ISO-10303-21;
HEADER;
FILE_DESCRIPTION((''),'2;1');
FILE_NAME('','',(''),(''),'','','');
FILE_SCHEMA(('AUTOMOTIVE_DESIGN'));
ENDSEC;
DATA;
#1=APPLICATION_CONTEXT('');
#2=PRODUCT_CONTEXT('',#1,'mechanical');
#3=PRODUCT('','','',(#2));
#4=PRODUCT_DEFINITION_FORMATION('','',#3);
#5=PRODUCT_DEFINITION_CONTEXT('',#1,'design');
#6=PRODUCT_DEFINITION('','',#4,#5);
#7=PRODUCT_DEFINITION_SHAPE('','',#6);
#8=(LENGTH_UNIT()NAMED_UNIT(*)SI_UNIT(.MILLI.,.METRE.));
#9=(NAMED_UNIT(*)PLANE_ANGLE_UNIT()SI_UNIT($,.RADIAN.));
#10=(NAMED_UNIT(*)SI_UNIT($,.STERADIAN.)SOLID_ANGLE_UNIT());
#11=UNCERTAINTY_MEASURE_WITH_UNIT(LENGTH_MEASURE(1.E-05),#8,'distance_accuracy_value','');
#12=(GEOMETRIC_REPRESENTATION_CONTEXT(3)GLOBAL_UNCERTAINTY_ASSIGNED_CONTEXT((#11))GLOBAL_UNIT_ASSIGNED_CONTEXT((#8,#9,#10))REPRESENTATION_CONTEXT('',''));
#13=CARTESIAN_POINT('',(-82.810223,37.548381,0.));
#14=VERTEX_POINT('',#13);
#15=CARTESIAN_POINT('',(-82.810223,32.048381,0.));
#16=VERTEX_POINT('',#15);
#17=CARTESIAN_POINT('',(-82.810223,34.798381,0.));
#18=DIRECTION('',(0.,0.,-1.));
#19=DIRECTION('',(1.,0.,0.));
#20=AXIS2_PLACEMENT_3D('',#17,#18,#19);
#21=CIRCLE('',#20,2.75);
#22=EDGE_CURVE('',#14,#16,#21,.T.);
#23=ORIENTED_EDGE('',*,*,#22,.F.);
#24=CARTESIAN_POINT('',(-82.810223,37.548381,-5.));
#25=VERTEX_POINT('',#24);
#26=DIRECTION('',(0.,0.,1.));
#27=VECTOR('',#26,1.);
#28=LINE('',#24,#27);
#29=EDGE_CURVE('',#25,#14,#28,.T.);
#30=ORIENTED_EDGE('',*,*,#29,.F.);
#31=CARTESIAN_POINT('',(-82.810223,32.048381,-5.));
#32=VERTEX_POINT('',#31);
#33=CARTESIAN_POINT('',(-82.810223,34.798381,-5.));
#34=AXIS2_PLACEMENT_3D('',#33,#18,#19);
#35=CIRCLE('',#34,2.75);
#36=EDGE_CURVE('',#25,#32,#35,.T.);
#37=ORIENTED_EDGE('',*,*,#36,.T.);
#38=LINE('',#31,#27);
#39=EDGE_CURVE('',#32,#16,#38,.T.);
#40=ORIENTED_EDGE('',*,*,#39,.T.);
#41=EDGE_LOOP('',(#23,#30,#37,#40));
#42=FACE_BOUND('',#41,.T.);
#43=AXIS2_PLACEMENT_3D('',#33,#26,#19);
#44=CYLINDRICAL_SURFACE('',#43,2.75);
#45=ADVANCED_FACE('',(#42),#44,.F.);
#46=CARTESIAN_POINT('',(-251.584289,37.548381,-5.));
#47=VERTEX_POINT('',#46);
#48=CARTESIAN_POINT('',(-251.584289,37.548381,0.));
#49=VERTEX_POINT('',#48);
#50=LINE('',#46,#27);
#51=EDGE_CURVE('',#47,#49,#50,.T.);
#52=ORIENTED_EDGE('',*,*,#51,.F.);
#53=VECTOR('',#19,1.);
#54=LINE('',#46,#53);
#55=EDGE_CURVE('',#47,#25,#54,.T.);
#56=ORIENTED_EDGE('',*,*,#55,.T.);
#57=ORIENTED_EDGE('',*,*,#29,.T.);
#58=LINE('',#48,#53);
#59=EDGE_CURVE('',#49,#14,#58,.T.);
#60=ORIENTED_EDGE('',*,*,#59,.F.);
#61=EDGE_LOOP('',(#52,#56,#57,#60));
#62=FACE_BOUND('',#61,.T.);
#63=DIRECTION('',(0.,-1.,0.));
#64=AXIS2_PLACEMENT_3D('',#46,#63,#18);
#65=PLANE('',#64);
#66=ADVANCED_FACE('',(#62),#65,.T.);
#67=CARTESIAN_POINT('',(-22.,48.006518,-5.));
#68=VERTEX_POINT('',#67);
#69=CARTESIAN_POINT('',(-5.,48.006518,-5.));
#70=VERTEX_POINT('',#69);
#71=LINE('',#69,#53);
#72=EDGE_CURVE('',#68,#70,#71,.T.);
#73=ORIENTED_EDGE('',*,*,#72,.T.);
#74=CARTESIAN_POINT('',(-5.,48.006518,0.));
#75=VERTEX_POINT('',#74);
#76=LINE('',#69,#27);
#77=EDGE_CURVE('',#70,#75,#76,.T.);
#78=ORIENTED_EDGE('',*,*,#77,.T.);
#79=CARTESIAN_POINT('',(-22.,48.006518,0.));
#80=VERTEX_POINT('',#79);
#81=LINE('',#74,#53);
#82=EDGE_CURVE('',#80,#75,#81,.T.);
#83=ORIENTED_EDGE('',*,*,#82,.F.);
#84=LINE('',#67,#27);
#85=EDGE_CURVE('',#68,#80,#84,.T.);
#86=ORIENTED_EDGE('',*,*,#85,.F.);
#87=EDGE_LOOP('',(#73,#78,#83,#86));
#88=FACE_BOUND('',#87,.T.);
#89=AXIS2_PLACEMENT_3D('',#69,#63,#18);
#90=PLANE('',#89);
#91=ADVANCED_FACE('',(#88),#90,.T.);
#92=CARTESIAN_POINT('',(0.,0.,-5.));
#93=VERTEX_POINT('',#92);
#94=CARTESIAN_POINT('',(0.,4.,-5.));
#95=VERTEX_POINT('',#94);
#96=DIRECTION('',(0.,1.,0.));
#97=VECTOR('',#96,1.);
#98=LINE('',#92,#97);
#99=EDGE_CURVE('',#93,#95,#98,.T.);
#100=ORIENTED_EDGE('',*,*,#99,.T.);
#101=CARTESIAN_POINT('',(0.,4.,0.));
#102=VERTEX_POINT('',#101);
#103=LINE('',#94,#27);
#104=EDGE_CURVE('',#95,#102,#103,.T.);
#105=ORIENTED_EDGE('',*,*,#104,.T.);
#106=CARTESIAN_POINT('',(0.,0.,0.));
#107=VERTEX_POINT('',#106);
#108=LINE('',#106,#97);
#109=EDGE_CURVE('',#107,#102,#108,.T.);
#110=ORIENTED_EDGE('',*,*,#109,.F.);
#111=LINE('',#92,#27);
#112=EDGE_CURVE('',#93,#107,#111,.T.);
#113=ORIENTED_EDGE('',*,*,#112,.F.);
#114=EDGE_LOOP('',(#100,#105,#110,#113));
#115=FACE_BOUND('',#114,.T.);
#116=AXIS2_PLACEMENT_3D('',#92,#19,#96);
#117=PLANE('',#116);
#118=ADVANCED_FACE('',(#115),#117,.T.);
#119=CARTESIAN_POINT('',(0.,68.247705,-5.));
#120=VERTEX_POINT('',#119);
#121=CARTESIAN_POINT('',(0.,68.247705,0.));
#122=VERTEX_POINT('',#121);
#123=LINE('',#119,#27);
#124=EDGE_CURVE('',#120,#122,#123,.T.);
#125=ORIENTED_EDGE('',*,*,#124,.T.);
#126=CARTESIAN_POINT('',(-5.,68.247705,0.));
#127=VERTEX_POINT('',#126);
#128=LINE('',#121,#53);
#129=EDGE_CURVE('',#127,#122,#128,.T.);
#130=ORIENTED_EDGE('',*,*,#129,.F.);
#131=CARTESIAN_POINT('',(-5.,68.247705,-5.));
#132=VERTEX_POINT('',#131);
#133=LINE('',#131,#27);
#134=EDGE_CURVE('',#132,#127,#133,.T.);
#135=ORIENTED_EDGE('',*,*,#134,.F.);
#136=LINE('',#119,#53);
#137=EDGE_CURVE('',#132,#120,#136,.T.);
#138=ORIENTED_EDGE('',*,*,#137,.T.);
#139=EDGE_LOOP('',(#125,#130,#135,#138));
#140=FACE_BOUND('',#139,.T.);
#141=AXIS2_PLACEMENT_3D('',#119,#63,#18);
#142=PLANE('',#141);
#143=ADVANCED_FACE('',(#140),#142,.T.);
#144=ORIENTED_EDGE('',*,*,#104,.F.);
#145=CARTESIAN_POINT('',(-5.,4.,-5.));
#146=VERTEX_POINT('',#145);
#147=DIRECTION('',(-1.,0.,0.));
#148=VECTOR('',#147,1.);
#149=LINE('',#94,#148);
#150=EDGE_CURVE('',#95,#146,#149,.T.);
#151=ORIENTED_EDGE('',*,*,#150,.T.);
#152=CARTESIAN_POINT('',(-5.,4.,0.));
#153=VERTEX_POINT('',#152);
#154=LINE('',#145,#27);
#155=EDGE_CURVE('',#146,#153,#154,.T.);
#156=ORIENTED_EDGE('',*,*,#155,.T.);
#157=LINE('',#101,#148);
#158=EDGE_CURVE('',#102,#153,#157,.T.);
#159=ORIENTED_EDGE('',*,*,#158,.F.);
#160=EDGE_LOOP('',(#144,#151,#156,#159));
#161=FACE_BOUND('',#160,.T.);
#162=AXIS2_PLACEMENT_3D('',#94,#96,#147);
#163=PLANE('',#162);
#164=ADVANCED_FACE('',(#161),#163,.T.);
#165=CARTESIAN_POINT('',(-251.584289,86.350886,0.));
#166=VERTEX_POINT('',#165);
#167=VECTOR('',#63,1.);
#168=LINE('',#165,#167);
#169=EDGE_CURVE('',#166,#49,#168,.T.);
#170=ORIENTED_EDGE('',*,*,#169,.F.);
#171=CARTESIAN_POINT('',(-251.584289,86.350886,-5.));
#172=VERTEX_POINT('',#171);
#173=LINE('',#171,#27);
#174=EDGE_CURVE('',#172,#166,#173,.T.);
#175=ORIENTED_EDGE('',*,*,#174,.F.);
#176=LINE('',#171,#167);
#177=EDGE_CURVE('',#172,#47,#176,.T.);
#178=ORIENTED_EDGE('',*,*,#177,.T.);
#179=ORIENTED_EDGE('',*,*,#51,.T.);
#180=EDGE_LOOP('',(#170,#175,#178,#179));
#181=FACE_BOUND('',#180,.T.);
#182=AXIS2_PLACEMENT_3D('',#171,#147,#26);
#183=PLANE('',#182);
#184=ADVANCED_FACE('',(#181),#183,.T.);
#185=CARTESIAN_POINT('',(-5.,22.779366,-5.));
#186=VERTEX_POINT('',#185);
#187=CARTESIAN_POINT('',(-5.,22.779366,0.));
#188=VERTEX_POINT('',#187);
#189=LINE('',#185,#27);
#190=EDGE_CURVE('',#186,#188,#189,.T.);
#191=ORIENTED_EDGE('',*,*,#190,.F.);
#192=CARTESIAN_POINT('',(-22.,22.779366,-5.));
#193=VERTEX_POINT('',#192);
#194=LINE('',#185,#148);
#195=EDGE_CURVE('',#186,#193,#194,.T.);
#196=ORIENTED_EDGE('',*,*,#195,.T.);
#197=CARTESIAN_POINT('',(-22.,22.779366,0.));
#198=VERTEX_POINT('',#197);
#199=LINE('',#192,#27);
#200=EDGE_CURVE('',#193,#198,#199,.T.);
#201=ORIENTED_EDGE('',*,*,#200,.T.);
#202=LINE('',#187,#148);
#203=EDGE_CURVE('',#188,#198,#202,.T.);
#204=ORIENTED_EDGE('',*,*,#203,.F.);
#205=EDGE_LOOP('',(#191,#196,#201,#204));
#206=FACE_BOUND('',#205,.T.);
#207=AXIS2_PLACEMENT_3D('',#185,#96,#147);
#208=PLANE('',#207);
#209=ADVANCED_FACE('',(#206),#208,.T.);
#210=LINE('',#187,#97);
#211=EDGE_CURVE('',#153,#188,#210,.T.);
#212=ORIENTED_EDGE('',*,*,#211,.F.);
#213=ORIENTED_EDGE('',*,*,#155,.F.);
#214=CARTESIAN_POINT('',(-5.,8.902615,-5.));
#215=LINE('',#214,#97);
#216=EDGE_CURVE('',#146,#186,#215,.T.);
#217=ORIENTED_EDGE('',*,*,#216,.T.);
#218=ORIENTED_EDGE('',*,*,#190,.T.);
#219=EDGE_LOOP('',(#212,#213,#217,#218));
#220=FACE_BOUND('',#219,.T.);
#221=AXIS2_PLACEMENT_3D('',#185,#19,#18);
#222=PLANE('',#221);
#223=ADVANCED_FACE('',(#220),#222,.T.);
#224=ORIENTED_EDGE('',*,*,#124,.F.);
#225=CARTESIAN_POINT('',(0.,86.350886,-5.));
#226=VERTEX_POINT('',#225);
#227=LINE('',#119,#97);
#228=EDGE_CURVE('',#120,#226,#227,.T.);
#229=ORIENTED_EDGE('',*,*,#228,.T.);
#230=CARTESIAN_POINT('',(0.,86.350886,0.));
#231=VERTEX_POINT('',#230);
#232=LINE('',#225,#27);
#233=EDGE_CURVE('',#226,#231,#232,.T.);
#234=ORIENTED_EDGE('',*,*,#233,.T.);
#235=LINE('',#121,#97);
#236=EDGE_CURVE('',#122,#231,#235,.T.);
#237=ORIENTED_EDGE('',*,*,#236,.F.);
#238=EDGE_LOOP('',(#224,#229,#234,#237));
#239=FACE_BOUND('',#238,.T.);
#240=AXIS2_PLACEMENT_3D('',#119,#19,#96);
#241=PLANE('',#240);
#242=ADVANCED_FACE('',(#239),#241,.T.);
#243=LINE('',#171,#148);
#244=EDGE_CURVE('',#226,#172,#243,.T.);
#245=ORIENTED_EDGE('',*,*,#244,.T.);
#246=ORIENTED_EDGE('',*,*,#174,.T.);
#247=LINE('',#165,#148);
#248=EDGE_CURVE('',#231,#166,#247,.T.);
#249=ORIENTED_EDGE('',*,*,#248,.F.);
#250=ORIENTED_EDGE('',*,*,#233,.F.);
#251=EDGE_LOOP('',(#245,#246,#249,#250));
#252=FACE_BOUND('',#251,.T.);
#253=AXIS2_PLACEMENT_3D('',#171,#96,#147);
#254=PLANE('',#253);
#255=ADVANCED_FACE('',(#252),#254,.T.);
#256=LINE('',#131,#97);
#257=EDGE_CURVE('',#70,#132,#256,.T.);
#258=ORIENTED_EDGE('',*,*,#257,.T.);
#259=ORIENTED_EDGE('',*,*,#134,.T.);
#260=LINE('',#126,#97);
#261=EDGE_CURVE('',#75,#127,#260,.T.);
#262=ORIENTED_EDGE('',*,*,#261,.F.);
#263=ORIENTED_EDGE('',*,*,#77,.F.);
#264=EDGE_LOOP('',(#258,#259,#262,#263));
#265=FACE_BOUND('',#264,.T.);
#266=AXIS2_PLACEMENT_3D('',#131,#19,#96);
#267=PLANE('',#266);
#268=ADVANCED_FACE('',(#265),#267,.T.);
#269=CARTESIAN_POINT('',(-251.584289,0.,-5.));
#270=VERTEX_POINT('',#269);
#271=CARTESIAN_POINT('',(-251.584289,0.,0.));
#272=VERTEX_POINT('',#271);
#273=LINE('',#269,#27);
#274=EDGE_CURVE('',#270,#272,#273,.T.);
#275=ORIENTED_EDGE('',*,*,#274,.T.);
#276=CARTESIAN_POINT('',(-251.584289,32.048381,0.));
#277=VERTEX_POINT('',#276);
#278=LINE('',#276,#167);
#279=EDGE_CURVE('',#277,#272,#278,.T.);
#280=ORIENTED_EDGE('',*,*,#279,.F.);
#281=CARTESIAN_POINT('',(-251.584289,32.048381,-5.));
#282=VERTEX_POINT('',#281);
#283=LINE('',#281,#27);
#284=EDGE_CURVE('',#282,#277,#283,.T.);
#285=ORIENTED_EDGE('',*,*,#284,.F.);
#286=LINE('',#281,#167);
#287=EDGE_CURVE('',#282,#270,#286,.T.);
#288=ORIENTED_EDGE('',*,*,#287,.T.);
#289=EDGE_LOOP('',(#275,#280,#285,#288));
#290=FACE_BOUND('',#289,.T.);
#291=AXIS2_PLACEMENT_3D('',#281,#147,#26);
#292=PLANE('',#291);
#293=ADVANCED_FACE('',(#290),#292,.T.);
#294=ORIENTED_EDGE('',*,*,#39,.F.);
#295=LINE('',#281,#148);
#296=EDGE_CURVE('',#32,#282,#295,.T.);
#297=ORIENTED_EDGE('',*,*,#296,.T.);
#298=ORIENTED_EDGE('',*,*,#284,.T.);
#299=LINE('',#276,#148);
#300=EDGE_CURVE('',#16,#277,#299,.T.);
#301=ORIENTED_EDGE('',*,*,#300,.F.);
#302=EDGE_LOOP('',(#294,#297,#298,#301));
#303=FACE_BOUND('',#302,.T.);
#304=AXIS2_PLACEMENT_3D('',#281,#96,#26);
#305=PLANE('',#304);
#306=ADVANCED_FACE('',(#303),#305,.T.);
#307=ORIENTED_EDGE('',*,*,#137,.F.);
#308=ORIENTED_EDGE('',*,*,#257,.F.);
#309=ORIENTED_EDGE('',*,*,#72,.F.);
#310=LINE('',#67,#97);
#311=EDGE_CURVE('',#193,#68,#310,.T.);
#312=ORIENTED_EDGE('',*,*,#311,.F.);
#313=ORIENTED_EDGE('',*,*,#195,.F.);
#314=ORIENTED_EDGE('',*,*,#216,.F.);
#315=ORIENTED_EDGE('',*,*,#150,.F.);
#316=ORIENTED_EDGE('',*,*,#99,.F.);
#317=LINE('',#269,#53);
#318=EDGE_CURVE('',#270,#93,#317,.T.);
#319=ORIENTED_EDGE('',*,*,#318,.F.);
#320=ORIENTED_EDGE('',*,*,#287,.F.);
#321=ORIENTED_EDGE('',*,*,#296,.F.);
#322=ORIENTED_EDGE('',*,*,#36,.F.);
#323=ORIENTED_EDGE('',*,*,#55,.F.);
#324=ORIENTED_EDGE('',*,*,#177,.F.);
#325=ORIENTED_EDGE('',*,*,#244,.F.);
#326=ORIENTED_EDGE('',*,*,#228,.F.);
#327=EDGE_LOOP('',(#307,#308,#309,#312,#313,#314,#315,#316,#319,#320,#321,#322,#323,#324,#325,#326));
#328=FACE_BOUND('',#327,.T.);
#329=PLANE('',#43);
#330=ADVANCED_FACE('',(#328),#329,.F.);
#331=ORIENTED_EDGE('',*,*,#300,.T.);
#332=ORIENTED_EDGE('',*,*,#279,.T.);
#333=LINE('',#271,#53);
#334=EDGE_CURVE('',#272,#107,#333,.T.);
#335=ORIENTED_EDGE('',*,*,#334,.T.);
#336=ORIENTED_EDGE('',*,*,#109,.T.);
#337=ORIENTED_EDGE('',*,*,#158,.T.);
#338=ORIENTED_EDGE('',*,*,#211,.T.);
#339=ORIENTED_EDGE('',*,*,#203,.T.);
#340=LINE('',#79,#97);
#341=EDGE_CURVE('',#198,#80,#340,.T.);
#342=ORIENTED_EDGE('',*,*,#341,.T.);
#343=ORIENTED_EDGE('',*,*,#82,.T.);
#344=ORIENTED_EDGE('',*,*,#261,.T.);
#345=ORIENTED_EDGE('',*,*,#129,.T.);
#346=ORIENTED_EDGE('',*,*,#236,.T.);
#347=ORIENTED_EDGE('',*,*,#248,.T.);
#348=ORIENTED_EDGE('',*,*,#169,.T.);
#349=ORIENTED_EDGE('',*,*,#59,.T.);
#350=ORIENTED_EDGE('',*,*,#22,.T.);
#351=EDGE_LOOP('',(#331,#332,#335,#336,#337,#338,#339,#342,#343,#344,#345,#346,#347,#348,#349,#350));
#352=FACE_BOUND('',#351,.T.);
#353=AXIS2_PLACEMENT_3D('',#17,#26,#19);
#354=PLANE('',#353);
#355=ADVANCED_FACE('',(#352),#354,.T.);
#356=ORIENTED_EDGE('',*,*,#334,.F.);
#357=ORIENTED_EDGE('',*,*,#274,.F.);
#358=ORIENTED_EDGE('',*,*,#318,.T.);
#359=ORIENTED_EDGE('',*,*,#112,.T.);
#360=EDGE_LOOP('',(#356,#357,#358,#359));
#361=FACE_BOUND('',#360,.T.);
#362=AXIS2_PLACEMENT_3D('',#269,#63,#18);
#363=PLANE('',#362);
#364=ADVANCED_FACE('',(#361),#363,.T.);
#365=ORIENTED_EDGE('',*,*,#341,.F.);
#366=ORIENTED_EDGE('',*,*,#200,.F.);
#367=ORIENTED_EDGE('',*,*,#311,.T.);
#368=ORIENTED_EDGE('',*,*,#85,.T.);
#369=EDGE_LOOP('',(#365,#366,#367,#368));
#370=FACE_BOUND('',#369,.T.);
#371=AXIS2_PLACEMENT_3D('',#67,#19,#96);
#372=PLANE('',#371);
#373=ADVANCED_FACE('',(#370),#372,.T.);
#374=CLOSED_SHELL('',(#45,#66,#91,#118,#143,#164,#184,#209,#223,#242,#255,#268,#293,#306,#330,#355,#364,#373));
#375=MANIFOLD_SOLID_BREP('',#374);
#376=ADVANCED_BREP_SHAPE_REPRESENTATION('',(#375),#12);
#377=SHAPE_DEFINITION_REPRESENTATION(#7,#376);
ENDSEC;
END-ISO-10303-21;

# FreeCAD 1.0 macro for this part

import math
import FreeCAD as App
import Part
import Sketcher

doc = App.newDocument("Part")
body = doc.addObject("PartDesign::Body", "Body")

sketch1 = body.newObject("Sketcher::SketchObject", "Sketch")
sketch1.AttachmentSupport = (doc.getObject("XY_Plane"), [""])
sketch1.MapMode = "FlatFace"
sketch1.addGeometry(Part.LineSegment(App.Vector(0, 4, 0), App.Vector(-5, 4, 0)), False)
sketch1.addGeometry(Part.LineSegment(App.Vector(-5, 4, 0), App.Vector(-5, 22.8, 0)), False)
sketch1.addGeometry(Part.LineSegment(App.Vector(-5, 22.8, 0), App.Vector(-22, 22.8, 0)), False)
sketch1.addGeometry(Part.LineSegment(App.Vector(-22, 22.8, 0), App.Vector(-22, 48, 0)), False)
sketch1.addGeometry(Part.LineSegment(App.Vector(-22, 48, 0), App.Vector(-5, 48, 0)), False)
sketch1.addGeometry(Part.LineSegment(App.Vector(-5, 48, 0), App.Vector(-5, 68.2, 0)), False)
sketch1.addGeometry(Part.LineSegment(App.Vector(-5, 68.2, 0), App.Vector(0, 68.2, 0)), False)
sketch1.addGeometry(Part.LineSegment(App.Vector(0, 68.2, 0), App.Vector(0, 86.4, 0)), False)
sketch1.addGeometry(Part.LineSegment(App.Vector(0, 86.4, 0), App.Vector(-251.6, 86.4, 0)), False)
sketch1.addGeometry(Part.LineSegment(App.Vector(-251.6, 86.4, 0), App.Vector(-251.6, 37.5, 0)), False)
sketch1.addGeometry(Part.LineSegment(App.Vector(-251.6, 37.5, 0), App.Vector(-82.8, 37.5, 0)), False)
sketch1.addGeometry(Part.ArcOfCircle(Part.Circle(App.Vector(-82.8, 34.8, 0), App.Vector(0, 0, 1), 2.8), math.radians(-90), math.radians(90)), False)
sketch1.addGeometry(Part.LineSegment(App.Vector(-82.8, 32, 0), App.Vector(-251.6, 32, 0)), False)
sketch1.addGeometry(Part.LineSegment(App.Vector(-251.6, 32, 0), App.Vector(-251.6, 0, 0)), False)
sketch1.addGeometry(Part.LineSegment(App.Vector(-251.6, 0, 0), App.Vector(0, 0, 0)), False)
sketch1.addGeometry(Part.LineSegment(App.Vector(0, 0, 0), App.Vector(0, 4, 0)), False)
sketch1.addConstraint(Sketcher.Constraint("Coincident", 0, 2, 1, 1))
sketch1.addConstraint(Sketcher.Constraint("Coincident", 1, 2, 2, 1))
sketch1.addConstraint(Sketcher.Constraint("Coincident", 2, 2, 3, 1))
sketch1.addConstraint(Sketcher.Constraint("Coincident", 3, 2, 4, 1))
sketch1.addConstraint(Sketcher.Constraint("Coincident", 4, 2, 5, 1))
sketch1.addConstraint(Sketcher.Constraint("Coincident", 5, 2, 6, 1))
sketch1.addConstraint(Sketcher.Constraint("Coincident", 6, 2, 7, 1))
sketch1.addConstraint(Sketcher.Constraint("Coincident", 7, 2, 8, 1))
sketch1.addConstraint(Sketcher.Constraint("Coincident", 8, 2, 9, 1))
sketch1.addConstraint(Sketcher.Constraint("Coincident", 9, 2, 10, 1))
sketch1.addConstraint(Sketcher.Constraint("Tangent", 10, 2, 11, 2))
sketch1.addConstraint(Sketcher.Constraint("Tangent", 11, 1, 12, 1))
sketch1.addConstraint(Sketcher.Constraint("Coincident", 12, 2, 13, 1))
sketch1.addConstraint(Sketcher.Constraint("Coincident", 13, 2, 14, 1))
sketch1.addConstraint(Sketcher.Constraint("Coincident", 14, 2, 15, 1))
sketch1.addConstraint(Sketcher.Constraint("Coincident", 15, 2, 0, 1))
sketch1.addConstraint(Sketcher.Constraint("Horizontal", 0))
sketch1.addConstraint(Sketcher.Constraint("Vertical", 1))
sketch1.addConstraint(Sketcher.Constraint("Horizontal", 2))
sketch1.addConstraint(Sketcher.Constraint("Vertical", 3))
sketch1.addConstraint(Sketcher.Constraint("Horizontal", 4))
sketch1.addConstraint(Sketcher.Constraint("Vertical", 5))
sketch1.addConstraint(Sketcher.Constraint("Horizontal", 6))
sketch1.addConstraint(Sketcher.Constraint("Vertical", 7))
sketch1.addConstraint(Sketcher.Constraint("Horizontal", 8))
sketch1.addConstraint(Sketcher.Constraint("Vertical", 9))
sketch1.addConstraint(Sketcher.Constraint("Horizontal", 10))
sketch1.addConstraint(Sketcher.Constraint("Horizontal", 12))
sketch1.addConstraint(Sketcher.Constraint("Vertical", 13))
sketch1.addConstraint(Sketcher.Constraint("Horizontal", 14))
sketch1.addConstraint(Sketcher.Constraint("Vertical", 15))
sketch1.addConstraint(Sketcher.Constraint("Coincident", 14, 2, -1, 1))
sketch1.addConstraint(Sketcher.Constraint("PointOnObject", 6, 2, -2))
sketch1.addConstraint(Sketcher.Constraint("Vertical", 1, 2, 4, 2))
sketch1.addConstraint(Sketcher.Constraint("Vertical", 9, 2, 12, 2))
sketch1.addConstraint(Sketcher.Constraint("DistanceX", 0, 2, 0, 1, 5.0))
sketch1.addConstraint(Sketcher.Constraint("DistanceX", 2, 2, 2, 1, 17.0))
sketch1.addConstraint(Sketcher.Constraint("DistanceY", 15, 1, 15, 2, 4.0))
sketch1.addConstraint(Sketcher.Constraint("Radius", 11, 2.75))
sketch1.addConstraint(Sketcher.Constraint("DistanceX", 8, 2, 8, 1, 251.584289))
sketch1.addConstraint(Sketcher.Constraint("DistanceY", 3, 1, 3, 2, 25.227151))
sketch1.addConstraint(Sketcher.Constraint("DistanceY", 7, 1, 7, 2, 18.103181))
sketch1.addConstraint(Sketcher.Constraint("DistanceY", 13, 2, 13, 1, 32.048381))
sketch1.addConstraint(Sketcher.Constraint("DistanceX", 10, 1, 10, 2, 168.774066))
sketch1.addConstraint(Sketcher.Constraint("DistanceY", 1, 1, 1, 2, 18.779366))
sketch1.addConstraint(Sketcher.Constraint("DistanceY", 5, 1, 5, 2, 20.241187))
pad1 = body.newObject("PartDesign::Pad", "Pad")
pad1.Profile = sketch1
pad1.Length = 5
pad1.Reversed = True

doc.recompute()
